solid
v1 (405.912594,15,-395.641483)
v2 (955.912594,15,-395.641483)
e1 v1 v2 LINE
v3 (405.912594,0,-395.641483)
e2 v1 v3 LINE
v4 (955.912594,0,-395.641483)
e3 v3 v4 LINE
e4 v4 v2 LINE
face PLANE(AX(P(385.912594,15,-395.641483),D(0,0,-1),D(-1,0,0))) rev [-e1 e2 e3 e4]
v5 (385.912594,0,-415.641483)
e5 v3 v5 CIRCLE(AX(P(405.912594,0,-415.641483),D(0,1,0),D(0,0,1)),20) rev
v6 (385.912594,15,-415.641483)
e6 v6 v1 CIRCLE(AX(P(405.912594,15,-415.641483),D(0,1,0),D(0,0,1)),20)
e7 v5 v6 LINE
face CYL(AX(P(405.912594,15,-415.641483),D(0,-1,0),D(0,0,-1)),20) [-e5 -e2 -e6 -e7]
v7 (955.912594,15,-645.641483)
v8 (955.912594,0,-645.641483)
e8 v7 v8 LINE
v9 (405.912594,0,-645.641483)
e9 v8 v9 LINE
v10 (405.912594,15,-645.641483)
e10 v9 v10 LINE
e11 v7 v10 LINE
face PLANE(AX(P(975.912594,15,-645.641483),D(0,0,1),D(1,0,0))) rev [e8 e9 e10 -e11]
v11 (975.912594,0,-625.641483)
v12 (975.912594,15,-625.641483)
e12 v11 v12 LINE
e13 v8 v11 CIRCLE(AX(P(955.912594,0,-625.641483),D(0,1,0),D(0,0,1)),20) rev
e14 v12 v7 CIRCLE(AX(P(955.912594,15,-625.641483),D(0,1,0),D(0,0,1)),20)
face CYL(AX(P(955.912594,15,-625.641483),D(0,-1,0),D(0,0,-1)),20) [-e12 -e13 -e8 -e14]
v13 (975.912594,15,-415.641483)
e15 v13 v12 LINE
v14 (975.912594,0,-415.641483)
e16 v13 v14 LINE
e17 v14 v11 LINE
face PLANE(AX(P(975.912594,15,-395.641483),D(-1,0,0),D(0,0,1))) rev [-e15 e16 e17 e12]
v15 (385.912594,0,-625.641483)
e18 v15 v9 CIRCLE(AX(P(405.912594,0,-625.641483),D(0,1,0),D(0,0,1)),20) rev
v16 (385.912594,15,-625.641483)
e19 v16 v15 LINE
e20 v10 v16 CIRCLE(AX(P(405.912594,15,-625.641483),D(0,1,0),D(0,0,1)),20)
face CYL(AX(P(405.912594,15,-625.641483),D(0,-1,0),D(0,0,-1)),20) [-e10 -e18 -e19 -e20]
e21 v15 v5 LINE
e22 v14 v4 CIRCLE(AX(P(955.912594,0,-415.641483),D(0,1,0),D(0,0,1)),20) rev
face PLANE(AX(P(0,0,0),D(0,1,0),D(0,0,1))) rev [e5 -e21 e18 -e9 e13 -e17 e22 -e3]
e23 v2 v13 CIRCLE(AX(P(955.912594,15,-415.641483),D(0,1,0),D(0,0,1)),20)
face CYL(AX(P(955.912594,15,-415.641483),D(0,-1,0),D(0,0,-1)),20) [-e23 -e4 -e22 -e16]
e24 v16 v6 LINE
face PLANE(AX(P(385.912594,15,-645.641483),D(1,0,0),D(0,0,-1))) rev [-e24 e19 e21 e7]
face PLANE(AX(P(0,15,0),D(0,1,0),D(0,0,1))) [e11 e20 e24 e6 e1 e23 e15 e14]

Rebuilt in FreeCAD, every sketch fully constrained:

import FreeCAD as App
import Part
import Sketcher
Q = App.Units.Quantity


def edges_at(feature, points):
    """Names of the edges that pass closest to the given points."""
    edges = feature.Shape.Edges
    near = lambda p: min(range(len(edges)), key=lambda i: edges[i].distToShape(Part.Vertex(*p))[0])
    return sorted({f"Edge{near(p) + 1}" for p in points})


def add_polygon(sketch, points):
    """Adds a closed chain of lines whose ends are joined by coincident constraints."""
    first, n = sketch.GeometryCount, len(points)
    for a, b in zip(points, points[1:] + points[:1]):
        sketch.addGeometry(Part.LineSegment(App.Vector(*a, 0), App.Vector(*b, 0)), False)
    for i in range(n):
        sketch.addConstraint(Sketcher.Constraint("Coincident", first + i, 2, first + (i + 1) % n, 1))

doc = App.newDocument("Part")
body = doc.addObject("PartDesign::Body", "Body")

# Sketch on XZ plane
sketch1 = body.newObject("Sketcher::SketchObject", "Sketch")
sketch1.AttachmentSupport = (doc.getObject("XZ_Plane"), [""])
sketch1.MapMode = "FlatFace"
add_polygon(sketch1, [(386, -646), (386, -396), (976, -396), (976, -646)])  # lines 0-3
sketch1.addConstraint([
    Sketcher.Constraint("Vertical", 0),
    Sketcher.Constraint("Horizontal", 1),
    Sketcher.Constraint("Vertical", 2),
    Sketcher.Constraint("Horizontal", 3),
    Sketcher.Constraint("DistanceX", 1, 1, 1, 2, Q("590 mm")),
    Sketcher.Constraint("DistanceY", 0, 1, 0, 2, Q("250 mm")),
    Sketcher.Constraint("DistanceX", -1, 1, 0, 2, Q("385.912594 mm")),
    Sketcher.Constraint("DistanceY", 0, 2, -1, 1, Q("395.641483 mm")),
])
pad1 = body.newObject("PartDesign::Pad", "Pad")
pad1.Profile = sketch1
pad1.Length = 15
pad1.Reversed = True
doc.recompute()

fillet = body.newObject("PartDesign::Fillet", "Fillet")
fillet.Base = (pad1, edges_at(pad1, [
    (385.913, 7.5, -645.641),
    (975.913, 7.5, -645.641),
    (975.913, 7.5, -395.641),
    (385.913, 7.5, -395.641),
]))
fillet.Radius = 20

doc.recompute()
